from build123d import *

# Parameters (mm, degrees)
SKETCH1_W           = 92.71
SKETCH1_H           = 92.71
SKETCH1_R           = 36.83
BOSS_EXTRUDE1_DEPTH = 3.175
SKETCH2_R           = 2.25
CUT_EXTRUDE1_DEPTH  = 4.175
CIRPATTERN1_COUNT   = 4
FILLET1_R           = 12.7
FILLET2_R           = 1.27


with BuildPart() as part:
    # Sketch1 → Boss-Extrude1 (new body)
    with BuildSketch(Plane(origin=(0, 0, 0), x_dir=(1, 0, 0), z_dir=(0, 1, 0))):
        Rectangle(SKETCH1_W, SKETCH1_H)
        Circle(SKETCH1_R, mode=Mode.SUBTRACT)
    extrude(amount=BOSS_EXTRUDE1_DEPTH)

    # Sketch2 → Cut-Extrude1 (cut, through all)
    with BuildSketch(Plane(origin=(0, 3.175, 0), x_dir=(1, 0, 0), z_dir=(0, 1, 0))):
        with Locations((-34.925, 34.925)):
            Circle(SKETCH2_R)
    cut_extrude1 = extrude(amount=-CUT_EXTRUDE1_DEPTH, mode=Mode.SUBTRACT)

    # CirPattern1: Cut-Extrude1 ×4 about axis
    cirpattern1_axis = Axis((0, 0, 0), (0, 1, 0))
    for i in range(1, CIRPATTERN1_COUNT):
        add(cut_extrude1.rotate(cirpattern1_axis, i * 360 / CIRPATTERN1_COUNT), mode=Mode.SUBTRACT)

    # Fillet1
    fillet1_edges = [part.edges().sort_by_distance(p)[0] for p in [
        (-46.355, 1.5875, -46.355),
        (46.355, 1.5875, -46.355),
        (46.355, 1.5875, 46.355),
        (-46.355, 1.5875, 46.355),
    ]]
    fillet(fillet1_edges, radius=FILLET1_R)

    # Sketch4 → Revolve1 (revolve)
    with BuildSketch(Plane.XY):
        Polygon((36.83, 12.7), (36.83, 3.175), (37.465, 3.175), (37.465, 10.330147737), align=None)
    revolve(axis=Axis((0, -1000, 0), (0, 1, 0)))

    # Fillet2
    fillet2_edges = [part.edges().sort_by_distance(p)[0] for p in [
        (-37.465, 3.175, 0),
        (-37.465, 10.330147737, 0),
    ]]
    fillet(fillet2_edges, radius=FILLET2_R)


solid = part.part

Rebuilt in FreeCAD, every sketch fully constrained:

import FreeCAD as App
import Part
import Sketcher
Q = App.Units.Quantity


def edges_at(feature, points):
    """Names of the edges that pass closest to the given points."""
    edges = feature.Shape.Edges
    near = lambda p: min(range(len(edges)), key=lambda i: edges[i].distToShape(Part.Vertex(*p))[0])
    return sorted({f"Edge{near(p) + 1}" for p in points})


def add_polygon(sketch, points):
    """Adds a closed chain of lines whose ends are joined by coincident constraints."""
    first, n = sketch.GeometryCount, len(points)
    for a, b in zip(points, points[1:] + points[:1]):
        sketch.addGeometry(Part.LineSegment(App.Vector(*a, 0), App.Vector(*b, 0)), False)
    for i in range(n):
        sketch.addConstraint(Sketcher.Constraint("Coincident", first + i, 2, first + (i + 1) % n, 1))

doc = App.newDocument("Part")
body = doc.addObject("PartDesign::Body", "Body")

sketch1 = doc.addObject("Sketcher::SketchObject", "Sketch")
body.addObject(sketch1)
sketch1.AttachmentSupport = (doc.XZ_Plane, [""])
sketch1.MapMode = "FlatFace"
add_polygon(sketch1, [(-46, -46), (-46, 46), (46, 46), (46, -46)])
sketch1.addGeometry(Part.Circle(App.Vector(0, 0, 0), App.Vector(0, 0, 1), 37), False)
sketch1.addConstraint([
    Sketcher.Constraint("Vertical", 0),
    Sketcher.Constraint("Horizontal", 1),
    Sketcher.Constraint("Vertical", 2),
    Sketcher.Constraint("Horizontal", 3),
    Sketcher.Constraint("Coincident", 4, 3, -1, 1),
    Sketcher.Constraint("Symmetric", 0, 2, 2, 2, -1, 1),
    Sketcher.Constraint("Equal", 3, 0),
    Sketcher.Constraint("Diameter", 4, Q("2.9 in")),
    Sketcher.Constraint("DistanceX", 1, 1, 1, 2, Q("3.65 in")),
])
pad1 = doc.addObject("PartDesign::Pad", "Pad")
body.addObject(pad1)
pad1.Profile = sketch1
pad1.Length = Q("0.125 in")
pad1.Reversed = True

sketch2 = doc.addObject("Sketcher::SketchObject", "Sketch001")
body.addObject(sketch2)
sketch2.AttachmentSupport = (doc.XZ_Plane, [""])
sketch2.MapMode = "FlatFace"
sketch2.AttachmentOffset = App.Placement(App.Vector(0, 0, -0.125 * 25.4), App.Rotation())
sketch2.addGeometry(Part.Circle(App.Vector(-34.9, -34.9, 0), App.Vector(0, 0, 1), 2.2), False)
sketch2.addConstraint([
    Sketcher.Constraint("Diameter", 0, Q("4.5 mm")),
    Sketcher.Constraint("DistanceX", 0, 3, -1, 1, Q("1.375 in")),
    Sketcher.Constraint("DistanceY", 0, 3, -1, 1, Q("1.375 in")),
])
pocket1 = doc.addObject("PartDesign::Pocket", "Pocket")
body.addObject(pocket1)
pocket1.Profile = sketch2
pocket1.Type = "ThroughAll"
pocket1.Reversed = True
doc.recompute()

polarpattern = doc.addObject("PartDesign::PolarPattern", "PolarPattern")
body.addObject(polarpattern)
polarpattern.Originals = [pocket1]
polarpattern.Axis = (doc.Y_Axis, [""])
polarpattern.Angle = 360
polarpattern.Occurrences = 4
body.Tip = polarpattern
doc.recompute()

fillet = doc.addObject("PartDesign::Fillet", "Fillet")
body.addObject(fillet)
fillet.Base = (polarpattern, edges_at(polarpattern, [
    (-46.355, 1.587, -46.355),
    (46.355, 1.587, -46.355),
    (46.355, 1.587, 46.355),
    (-46.355, 1.587, 46.355),
]))
fillet.Radius = Q("0.5 in")

sketch3 = doc.addObject("Sketcher::SketchObject", "Sketch002")
body.addObject(sketch3)
sketch3.AttachmentSupport = (doc.XY_Plane, [""])
sketch3.MapMode = "FlatFace"
add_polygon(sketch3, [(36.8, 12.7), (36.8, 3.2), (37.5, 3.2), (37.5, 10.3)])
sketch3.addConstraint([
    Sketcher.Constraint("Vertical", 0),
    Sketcher.Constraint("Horizontal", 1),
    Sketcher.Constraint("Vertical", 2),
    Sketcher.Constraint("Angle", 3, Q("105 deg")),
    Sketcher.Constraint("DistanceY", -1, 1, 3, 2, Q("0.5 in")),
    Sketcher.Constraint("DistanceX", 1, 1, 1, 2, Q("0.025 in")),
    Sketcher.Constraint("DistanceY", 0, 2, 0, 1, Q("0.375 in")),
    Sketcher.Constraint("DistanceX", -1, 1, 0, 2, Q("1.45 in")),
])
revolution = doc.addObject("PartDesign::Revolution", "Revolution")
body.addObject(revolution)
revolution.Profile = sketch3
revolution.ReferenceAxis = (sketch3, ["V_Axis"])
revolution.Angle = 360
doc.recompute()

fillet2 = doc.addObject("PartDesign::Fillet", "Fillet001")
body.addObject(fillet2)
fillet2.Base = (revolution, edges_at(revolution, [(-37.465, 3.175, 0), (-37.465, 10.33, 0)]))
fillet2.Radius = Q("0.05 in")

doc.recompute()
